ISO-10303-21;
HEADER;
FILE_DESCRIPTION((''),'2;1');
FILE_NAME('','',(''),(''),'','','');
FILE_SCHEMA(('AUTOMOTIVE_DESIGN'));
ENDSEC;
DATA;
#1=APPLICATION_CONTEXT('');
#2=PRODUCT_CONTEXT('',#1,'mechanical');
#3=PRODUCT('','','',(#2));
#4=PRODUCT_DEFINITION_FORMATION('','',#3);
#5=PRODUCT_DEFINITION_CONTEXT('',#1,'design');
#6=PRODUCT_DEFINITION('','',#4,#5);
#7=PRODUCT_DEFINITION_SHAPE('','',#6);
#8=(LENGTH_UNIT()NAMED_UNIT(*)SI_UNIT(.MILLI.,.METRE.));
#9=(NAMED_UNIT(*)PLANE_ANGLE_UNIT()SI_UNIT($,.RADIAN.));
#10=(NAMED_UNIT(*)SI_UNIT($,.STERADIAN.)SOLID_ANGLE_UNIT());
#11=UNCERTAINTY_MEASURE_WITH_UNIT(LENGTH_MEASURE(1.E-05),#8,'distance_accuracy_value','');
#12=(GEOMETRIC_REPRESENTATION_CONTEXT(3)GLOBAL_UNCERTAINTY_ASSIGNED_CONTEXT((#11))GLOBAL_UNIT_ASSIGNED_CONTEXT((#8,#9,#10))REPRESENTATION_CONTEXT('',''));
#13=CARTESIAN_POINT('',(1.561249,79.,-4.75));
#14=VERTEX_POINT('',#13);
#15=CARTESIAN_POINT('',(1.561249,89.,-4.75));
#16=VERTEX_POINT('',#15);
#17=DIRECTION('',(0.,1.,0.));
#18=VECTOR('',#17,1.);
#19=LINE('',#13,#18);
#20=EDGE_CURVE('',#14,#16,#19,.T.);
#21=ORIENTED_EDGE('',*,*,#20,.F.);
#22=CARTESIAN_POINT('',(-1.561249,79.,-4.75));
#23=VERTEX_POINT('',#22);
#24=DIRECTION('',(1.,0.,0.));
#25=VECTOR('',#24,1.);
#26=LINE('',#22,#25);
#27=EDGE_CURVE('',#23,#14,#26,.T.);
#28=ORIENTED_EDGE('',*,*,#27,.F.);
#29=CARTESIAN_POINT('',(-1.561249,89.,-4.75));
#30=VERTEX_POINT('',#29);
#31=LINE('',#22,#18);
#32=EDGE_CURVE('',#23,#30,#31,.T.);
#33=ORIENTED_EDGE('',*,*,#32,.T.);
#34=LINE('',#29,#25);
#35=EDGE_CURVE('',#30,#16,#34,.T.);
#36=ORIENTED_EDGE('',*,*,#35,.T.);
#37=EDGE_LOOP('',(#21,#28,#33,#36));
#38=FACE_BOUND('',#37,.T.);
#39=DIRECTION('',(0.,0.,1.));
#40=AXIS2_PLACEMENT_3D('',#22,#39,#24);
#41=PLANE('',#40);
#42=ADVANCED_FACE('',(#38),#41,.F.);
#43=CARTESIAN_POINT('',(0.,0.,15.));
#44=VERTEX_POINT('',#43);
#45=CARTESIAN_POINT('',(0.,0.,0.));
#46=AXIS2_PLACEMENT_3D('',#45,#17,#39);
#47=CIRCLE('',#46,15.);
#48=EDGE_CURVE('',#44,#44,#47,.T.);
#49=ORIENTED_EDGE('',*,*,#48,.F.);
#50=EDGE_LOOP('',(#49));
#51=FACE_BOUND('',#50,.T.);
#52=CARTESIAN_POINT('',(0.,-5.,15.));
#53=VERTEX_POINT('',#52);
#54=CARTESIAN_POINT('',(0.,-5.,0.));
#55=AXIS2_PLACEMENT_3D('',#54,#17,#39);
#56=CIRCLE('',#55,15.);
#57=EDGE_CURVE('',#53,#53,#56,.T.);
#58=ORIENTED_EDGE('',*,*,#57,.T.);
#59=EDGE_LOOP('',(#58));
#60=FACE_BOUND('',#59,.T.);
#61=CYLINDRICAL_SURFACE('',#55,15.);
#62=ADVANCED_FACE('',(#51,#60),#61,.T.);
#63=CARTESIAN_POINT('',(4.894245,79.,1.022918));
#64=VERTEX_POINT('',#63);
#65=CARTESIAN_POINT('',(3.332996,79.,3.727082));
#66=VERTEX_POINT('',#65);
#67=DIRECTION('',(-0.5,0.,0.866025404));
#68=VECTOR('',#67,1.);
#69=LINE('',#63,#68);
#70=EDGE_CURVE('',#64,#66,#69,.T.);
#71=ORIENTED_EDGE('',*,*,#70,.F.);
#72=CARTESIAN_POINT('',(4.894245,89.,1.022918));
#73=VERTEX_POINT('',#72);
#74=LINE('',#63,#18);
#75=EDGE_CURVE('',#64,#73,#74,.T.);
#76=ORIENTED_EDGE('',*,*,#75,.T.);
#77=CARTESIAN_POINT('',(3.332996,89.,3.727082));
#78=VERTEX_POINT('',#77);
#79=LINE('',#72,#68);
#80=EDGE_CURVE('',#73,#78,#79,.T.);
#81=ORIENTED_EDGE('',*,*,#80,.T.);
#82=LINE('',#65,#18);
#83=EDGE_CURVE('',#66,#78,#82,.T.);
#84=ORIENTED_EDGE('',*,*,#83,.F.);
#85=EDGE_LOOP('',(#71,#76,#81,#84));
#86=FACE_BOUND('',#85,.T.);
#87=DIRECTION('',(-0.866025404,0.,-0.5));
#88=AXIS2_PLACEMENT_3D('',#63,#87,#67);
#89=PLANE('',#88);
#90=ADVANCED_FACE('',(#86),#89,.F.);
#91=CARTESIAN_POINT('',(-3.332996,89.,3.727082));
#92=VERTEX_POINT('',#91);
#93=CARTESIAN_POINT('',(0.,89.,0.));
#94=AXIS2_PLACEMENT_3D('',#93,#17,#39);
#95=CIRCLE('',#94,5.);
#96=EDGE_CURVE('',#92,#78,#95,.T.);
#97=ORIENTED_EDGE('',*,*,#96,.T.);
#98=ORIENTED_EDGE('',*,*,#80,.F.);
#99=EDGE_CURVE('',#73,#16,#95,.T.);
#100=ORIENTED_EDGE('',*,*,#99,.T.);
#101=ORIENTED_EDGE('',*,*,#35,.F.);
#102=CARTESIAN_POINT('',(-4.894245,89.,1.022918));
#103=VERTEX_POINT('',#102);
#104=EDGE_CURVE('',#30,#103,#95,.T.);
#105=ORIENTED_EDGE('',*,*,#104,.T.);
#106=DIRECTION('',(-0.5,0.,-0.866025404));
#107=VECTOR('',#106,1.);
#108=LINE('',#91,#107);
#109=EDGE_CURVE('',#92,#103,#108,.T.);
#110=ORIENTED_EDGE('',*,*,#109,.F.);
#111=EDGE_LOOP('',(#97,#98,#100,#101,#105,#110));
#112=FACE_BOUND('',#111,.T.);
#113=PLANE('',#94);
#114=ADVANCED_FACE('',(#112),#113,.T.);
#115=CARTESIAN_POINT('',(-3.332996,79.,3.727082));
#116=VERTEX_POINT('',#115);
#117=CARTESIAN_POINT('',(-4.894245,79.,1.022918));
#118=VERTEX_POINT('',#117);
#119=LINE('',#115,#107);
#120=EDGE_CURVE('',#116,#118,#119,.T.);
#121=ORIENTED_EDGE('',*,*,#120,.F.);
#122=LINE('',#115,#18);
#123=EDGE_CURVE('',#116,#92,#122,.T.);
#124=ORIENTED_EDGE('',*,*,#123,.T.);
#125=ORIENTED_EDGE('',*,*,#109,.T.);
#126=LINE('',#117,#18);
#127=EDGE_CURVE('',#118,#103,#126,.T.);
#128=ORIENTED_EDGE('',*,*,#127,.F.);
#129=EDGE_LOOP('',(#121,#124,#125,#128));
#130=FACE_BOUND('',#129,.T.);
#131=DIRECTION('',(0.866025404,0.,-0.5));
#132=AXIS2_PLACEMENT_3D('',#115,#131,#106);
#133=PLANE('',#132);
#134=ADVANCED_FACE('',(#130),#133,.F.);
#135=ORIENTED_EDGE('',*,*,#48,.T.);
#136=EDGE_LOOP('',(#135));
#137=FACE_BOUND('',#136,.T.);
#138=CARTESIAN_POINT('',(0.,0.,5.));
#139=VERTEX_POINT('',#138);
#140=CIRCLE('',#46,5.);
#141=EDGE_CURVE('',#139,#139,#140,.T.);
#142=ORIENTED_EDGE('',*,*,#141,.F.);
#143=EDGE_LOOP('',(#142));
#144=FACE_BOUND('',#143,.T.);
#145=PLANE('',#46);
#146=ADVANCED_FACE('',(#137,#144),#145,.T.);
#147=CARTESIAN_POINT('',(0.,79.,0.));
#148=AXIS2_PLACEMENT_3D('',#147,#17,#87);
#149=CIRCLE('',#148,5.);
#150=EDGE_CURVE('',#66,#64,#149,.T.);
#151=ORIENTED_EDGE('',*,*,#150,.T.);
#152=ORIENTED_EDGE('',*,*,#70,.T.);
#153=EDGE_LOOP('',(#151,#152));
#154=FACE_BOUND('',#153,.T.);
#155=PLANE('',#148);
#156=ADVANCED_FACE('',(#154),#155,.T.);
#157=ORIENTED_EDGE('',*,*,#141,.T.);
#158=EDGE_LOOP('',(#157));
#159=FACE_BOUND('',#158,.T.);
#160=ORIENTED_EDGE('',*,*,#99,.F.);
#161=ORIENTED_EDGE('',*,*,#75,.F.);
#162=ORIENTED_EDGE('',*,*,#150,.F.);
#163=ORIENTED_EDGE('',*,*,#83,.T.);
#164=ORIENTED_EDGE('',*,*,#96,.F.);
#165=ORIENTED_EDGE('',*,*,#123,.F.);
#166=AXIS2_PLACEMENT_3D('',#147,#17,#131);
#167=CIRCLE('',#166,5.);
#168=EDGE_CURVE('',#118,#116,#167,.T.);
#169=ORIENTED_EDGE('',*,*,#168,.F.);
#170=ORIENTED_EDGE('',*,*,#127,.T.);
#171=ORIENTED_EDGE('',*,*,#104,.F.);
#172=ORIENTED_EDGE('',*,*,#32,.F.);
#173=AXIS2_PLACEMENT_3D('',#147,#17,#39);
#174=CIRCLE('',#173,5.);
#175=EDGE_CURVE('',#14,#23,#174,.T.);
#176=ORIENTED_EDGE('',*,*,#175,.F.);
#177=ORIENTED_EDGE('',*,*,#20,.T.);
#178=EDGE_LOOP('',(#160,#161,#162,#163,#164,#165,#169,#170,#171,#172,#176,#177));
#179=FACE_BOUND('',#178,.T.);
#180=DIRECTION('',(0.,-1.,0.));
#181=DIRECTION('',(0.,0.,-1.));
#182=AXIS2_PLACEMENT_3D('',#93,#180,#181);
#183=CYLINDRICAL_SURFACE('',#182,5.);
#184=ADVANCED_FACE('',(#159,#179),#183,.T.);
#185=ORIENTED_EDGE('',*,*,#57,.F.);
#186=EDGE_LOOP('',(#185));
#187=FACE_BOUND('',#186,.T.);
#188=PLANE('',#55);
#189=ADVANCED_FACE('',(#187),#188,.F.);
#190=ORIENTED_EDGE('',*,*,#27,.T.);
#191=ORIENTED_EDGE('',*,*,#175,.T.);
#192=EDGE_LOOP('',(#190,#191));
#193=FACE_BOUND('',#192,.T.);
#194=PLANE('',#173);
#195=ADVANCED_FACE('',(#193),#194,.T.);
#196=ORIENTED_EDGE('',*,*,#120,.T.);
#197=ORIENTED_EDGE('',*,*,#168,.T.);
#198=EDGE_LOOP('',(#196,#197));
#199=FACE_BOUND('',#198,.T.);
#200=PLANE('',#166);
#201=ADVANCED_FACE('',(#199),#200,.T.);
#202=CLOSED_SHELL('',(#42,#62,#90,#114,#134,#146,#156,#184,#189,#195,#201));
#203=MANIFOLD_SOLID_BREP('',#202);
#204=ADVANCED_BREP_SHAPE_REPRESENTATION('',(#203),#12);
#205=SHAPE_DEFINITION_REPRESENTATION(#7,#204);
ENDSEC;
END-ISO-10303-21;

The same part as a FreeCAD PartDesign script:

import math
import FreeCAD as App
import Part
import Sketcher
from FreeCAD import Vector
Q = App.Units.Quantity

doc = App.newDocument("Part")
params = doc.addObject("Spreadsheet::Sheet", "Params")
for row, (alias, value) in enumerate([
    ("sketch1_diameter", "30 mm"),
    ("pad1_length", "5 mm"),
    ("sketch2_diameter", "10 mm"),
    ("pad2_length", "89 mm"),
    ("sketch3_radius", "5 mm"),
    ("pocket1_length", "10 mm"),
], start=1):
    params.set(f"A{row}", alias)
    params.set(f"B{row}", "=" + value)
    params.setAlias(f"B{row}", alias)

body = doc.addObject("PartDesign::Body", "Body")

sketch1 = body.newObject("Sketcher::SketchObject", "Sketch")
sketch1.AttachmentSupport = (doc.getObject("XZ_Plane"), [""])
sketch1.MapMode = "FlatFace"
sketch1.addGeometry(Part.Circle(Vector(0, 0, 0), Vector(0, 0, 1), 15), False)
sketch1.addConstraint(Sketcher.Constraint("Coincident", 0, 3, -1, 1))
sketch1.addConstraint(Sketcher.Constraint("Diameter", 0, Q("30 mm")))
sketch1.setExpression("Constraints[1]", "Params.sketch1_diameter")
pad1 = body.newObject("PartDesign::Pad", "Pad")
pad1.Profile = sketch1
pad1.setExpression("Length", "Params.pad1_length")

sketch2 = body.newObject("Sketcher::SketchObject", "Sketch001")
sketch2.AttachmentSupport = (doc.getObject("XZ_Plane"), [""])
sketch2.MapMode = "FlatFace"
sketch2.addGeometry(Part.Circle(Vector(0, 0, 0), Vector(0, 0, 1), 5), False)
sketch2.addConstraint(Sketcher.Constraint("Coincident", 0, 3, -1, 1))
sketch2.addConstraint(Sketcher.Constraint("Diameter", 0, Q("10 mm")))
sketch2.setExpression("Constraints[1]", "Params.sketch2_diameter")
pad2 = body.newObject("PartDesign::Pad", "Pad001")
pad2.Profile = sketch2
pad2.setExpression("Length", "Params.pad2_length")
pad2.Reversed = True

sketch3 = body.newObject("Sketcher::SketchObject", "Sketch002")
sketch3.AttachmentSupport = (doc.getObject("XZ_Plane"), [""])
sketch3.MapMode = "FlatFace"
sketch3.AttachmentOffset = App.Placement(Vector(0, 0, -79), App.Rotation())
sketch3.addGeometry(Part.LineSegment(Vector(-1.561249, -4.75, 0), Vector(1.561249, -4.75, 0)), False)
sketch3.addGeometry(Part.ArcOfCircle(Part.Circle(Vector(0, 0, 0), Vector(0, 0, 1), 5), math.radians(-108.194872), math.radians(-71.805128)), False)
sketch3.addConstraint(Sketcher.Constraint("Coincident", 0, 1, 1, 1))
sketch3.addConstraint(Sketcher.Constraint("Coincident", 1, 2, 0, 2))
sketch3.addConstraint(Sketcher.Constraint("Horizontal", 0))
sketch3.addConstraint(Sketcher.Constraint("Coincident", 1, 3, -1, 1))
sketch3.addConstraint(Sketcher.Constraint("Radius", 1, Q("5 mm")))
sketch3.addConstraint(Sketcher.Constraint("DistanceY", 0, 1, -1, 1, Q("4.75 mm")))
sketch3.setExpression("Constraints[4]", "Params.sketch3_radius")
pocket1 = body.newObject("PartDesign::Pocket", "Pocket")
pocket1.Profile = sketch3
pocket1.setExpression("Length", "Params.pocket1_length")
doc.recompute()

polarpattern = body.newObject("PartDesign::PolarPattern", "PolarPattern")
polarpattern.Originals = [pocket1]
polarpattern.Axis = (doc.getObject("Y_Axis"), [""])
polarpattern.Angle = 360
polarpattern.Occurrences = 3
body.Tip = polarpattern

doc.recompute()
